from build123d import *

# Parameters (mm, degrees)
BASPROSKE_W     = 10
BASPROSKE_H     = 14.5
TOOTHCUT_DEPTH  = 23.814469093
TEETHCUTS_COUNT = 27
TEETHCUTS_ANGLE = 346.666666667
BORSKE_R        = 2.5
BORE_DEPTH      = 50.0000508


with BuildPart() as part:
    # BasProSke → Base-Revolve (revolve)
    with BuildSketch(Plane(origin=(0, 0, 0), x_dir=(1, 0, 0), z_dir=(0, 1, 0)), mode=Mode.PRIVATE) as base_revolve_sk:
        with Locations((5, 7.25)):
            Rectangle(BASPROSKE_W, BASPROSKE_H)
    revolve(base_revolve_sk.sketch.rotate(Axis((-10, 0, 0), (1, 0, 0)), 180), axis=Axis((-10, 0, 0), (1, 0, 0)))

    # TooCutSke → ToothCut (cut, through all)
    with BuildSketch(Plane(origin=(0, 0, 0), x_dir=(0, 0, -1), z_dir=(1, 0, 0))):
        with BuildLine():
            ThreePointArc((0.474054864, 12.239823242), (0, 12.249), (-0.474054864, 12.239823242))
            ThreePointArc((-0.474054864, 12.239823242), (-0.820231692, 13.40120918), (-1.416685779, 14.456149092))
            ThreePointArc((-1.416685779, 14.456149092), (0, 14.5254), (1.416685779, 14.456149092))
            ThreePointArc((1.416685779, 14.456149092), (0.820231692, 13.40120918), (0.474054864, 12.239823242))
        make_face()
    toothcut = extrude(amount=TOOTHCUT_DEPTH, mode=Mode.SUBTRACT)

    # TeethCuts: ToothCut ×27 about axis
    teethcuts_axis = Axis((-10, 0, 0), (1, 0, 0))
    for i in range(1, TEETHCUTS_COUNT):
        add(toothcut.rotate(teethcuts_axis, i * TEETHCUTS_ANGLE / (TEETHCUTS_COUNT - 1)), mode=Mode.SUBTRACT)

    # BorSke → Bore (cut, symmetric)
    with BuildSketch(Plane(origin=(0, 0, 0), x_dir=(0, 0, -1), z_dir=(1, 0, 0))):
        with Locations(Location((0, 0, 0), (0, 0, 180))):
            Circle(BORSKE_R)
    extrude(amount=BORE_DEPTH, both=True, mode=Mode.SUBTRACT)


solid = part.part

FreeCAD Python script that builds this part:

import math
import FreeCAD as App
import Part
import Sketcher

doc = App.newDocument("Part")
body = doc.addObject("PartDesign::Body", "Body")

# Sketch on XZ plane
sketch1 = body.newObject("Sketcher::SketchObject", "Sketch")
sketch1.AttachmentSupport = (doc.getObject("XZ_Plane"), [""])
sketch1.MapMode = "FlatFace"
sketch1.addGeometry([
    Part.LineSegment(App.Vector(0, -14.5, 0), App.Vector(0, 0, 0)),
    Part.LineSegment(App.Vector(0, 0, 0), App.Vector(10, 0, 0)),
    Part.LineSegment(App.Vector(10, 0, 0), App.Vector(10, -14.5, 0)),
    Part.LineSegment(App.Vector(10, -14.5, 0), App.Vector(0, -14.5, 0)),
], False)
sketch1.addConstraint([
    Sketcher.Constraint("Coincident", 0, 2, 1, 1),
    Sketcher.Constraint("Coincident", 1, 2, 2, 1),
    Sketcher.Constraint("Coincident", 2, 2, 3, 1),
    Sketcher.Constraint("Coincident", 3, 2, 0, 1),
    Sketcher.Constraint("Vertical", 0),
    Sketcher.Constraint("Horizontal", 1),
    Sketcher.Constraint("Vertical", 2),
    Sketcher.Constraint("Horizontal", 3),
    Sketcher.Constraint("Coincident", 0, 2, -1, 1),
    Sketcher.Constraint("DistanceX", 1, 1, 1, 2, 10.0),
    Sketcher.Constraint("DistanceY", 0, 1, 0, 2, 14.5),
])
revolution = body.newObject("PartDesign::Revolution", "Revolution")
revolution.Profile = sketch1
revolution.ReferenceAxis = (sketch1, ["H_Axis"])
revolution.Angle = 360

# Sketch on YZ plane
sketch2 = body.newObject("Sketcher::SketchObject", "Sketch001")
sketch2.AttachmentSupport = (doc.getObject("YZ_Plane"), [""])
sketch2.MapMode = "FlatFace"
sketch2.addGeometry([
    Part.ArcOfCircle(Part.Circle(App.Vector(-0.000001, 0, 0), App.Vector(0, 0, 1), 12.249001), math.radians(-2.217987), math.radians(2.217987)),
    Part.ArcOfCircle(Part.Circle(App.Vector(11.287735, -5.78946, 0), App.Vector(0, 0, 1), 5.4), math.radians(54.073752), math.radians(79.844943)),
    Part.ArcOfCircle(Part.Circle(App.Vector(0, 0, 0), App.Vector(0, 0, 1), 14.5254), math.radians(-5.597048), math.radians(5.597048)),
    Part.ArcOfCircle(Part.Circle(App.Vector(11.287735, 5.78946, 0), App.Vector(0, 0, 1), 5.4), math.radians(-79.844943), math.radians(-54.073752)),
], False)
sketch2.addConstraint([
    Sketcher.Constraint("Coincident", 0, 1, 1, 2),
    Sketcher.Constraint("Coincident", 1, 1, 2, 1),
    Sketcher.Constraint("Coincident", 2, 2, 3, 2),
    Sketcher.Constraint("Coincident", 3, 1, 0, 2),
    Sketcher.Constraint("Coincident", 0, 3, -1, 1),
    Sketcher.Constraint("Coincident", 2, 3, -1, 1),
    Sketcher.Constraint("Equal", 1, 3),
    Sketcher.Constraint("Symmetric", 1, 3, 3, 3, -1),
    Sketcher.Constraint("Radius", 1, 5.4),
    Sketcher.Constraint("Radius", 0, 12.249001),
    Sketcher.Constraint("Radius", 2, 14.5254),
    Sketcher.Constraint("DistanceY", 1, 3, -1, 1, 5.78946),
    Sketcher.Constraint("DistanceX", -1, 1, 1, 1, 14.456149),
])
pocket1 = body.newObject("PartDesign::Pocket", "Pocket")
pocket1.Profile = sketch2
pocket1.Type = "ThroughAll"
pocket1.Reversed = True
doc.recompute()

polarpattern = body.newObject("PartDesign::PolarPattern", "PolarPattern")
polarpattern.Originals = [pocket1]
polarpattern.Axis = (doc.getObject("X_Axis"), [""])
polarpattern.Angle = 360
polarpattern.Occurrences = 27
body.Tip = polarpattern

# Sketch on YZ plane
sketch3 = body.newObject("Sketcher::SketchObject", "Sketch002")
sketch3.AttachmentSupport = (doc.getObject("YZ_Plane"), [""])
sketch3.MapMode = "FlatFace"
sketch3.addGeometry(Part.Circle(App.Vector(0, 0, 0), App.Vector(0, 0, 1), 2.5), False)
sketch3.addConstraint([
    Sketcher.Constraint("Coincident", 0, 3, -1, 1),
    Sketcher.Constraint("Diameter", 0, 5.0),
])
pocket2 = body.newObject("PartDesign::Pocket", "Pocket001")
pocket2.Profile = sketch3
pocket2.Length = 100.000102
pocket2.Midplane = True

doc.recompute()
